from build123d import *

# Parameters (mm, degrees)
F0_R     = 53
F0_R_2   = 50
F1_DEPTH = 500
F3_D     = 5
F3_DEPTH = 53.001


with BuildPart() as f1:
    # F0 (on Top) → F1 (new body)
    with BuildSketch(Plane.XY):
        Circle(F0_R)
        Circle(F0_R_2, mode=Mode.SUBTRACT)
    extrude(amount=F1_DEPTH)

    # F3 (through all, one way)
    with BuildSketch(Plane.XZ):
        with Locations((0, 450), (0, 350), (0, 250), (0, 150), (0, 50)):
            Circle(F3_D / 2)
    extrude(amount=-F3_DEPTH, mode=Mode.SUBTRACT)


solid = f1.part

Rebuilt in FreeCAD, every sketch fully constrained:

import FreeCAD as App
import Part
import Sketcher
from FreeCAD import Vector

doc = App.newDocument("Part")
body = doc.addObject("PartDesign::Body", "Body")

# Sketch on XY plane
sketch1 = body.newObject("Sketcher::SketchObject", "Sketch")
sketch1.AttachmentSupport = (doc.getObject("XY_Plane"), [""])
sketch1.MapMode = "FlatFace"
sketch1.addGeometry([
    Part.Circle(Vector(0, 0, 0), Vector(0, 0, 1), 53),
    Part.Circle(Vector(0, 0, 0), Vector(0, 0, 1), 50),
], False)
sketch1.addConstraint([
    Sketcher.Constraint("Coincident", 0, 3, -1, 1),
    Sketcher.Constraint("Coincident", 1, 3, -1, 1),
    Sketcher.Constraint("Diameter", 0, 106.0),
    Sketcher.Constraint("Diameter", 1, 100.0),
])
pad1 = body.newObject("PartDesign::Pad", "Pad")
pad1.Profile = sketch1
pad1.Length = 500

# Sketch on XZ plane
sketch2 = body.newObject("Sketcher::SketchObject", "Sketch001")
sketch2.AttachmentSupport = (doc.getObject("XZ_Plane"), [""])
sketch2.MapMode = "FlatFace"
sketch2.addGeometry([
    Part.Circle(Vector(0, 50, 0), Vector(0, 0, 1), 2.5),  # 0
    Part.Circle(Vector(0, 450, 0), Vector(0, 0, 1), 2.5),  # 1
    Part.Circle(Vector(0, 350, 0), Vector(0, 0, 1), 2.5),  # 2
    Part.Circle(Vector(0, 250, 0), Vector(0, 0, 1), 2.5),  # 3
    Part.Circle(Vector(0, 150, 0), Vector(0, 0, 1), 2.5),  # 4
], False)
sketch2.addConstraint([
    Sketcher.Constraint("Equal", 0, 1),
    Sketcher.Constraint("Equal", 1, 2),
    Sketcher.Constraint("Equal", 2, 3),
    Sketcher.Constraint("Equal", 3, 4),
    Sketcher.Constraint("PointOnObject", 0, 3, -2),
    Sketcher.Constraint("PointOnObject", 1, 3, -2),
    Sketcher.Constraint("PointOnObject", 2, 3, -2),
    Sketcher.Constraint("PointOnObject", 3, 3, -2),
    Sketcher.Constraint("PointOnObject", 4, 3, -2),
    Sketcher.Constraint("Diameter", 0, 5.0),
    Sketcher.Constraint("DistanceY", -1, 1, 0, 3, 50.0),
    Sketcher.Constraint("DistanceY", -1, 1, 1, 3, 450.0),
    Sketcher.Constraint("DistanceY", -1, 1, 2, 3, 350.0),
    Sketcher.Constraint("DistanceY", -1, 1, 3, 3, 250.0),
    Sketcher.Constraint("DistanceY", -1, 1, 4, 3, 150.0),
])
pocket1 = body.newObject("PartDesign::Pocket", "Pocket")
pocket1.Profile = sketch2
pocket1.Type = "ThroughAll"

doc.recompute()
